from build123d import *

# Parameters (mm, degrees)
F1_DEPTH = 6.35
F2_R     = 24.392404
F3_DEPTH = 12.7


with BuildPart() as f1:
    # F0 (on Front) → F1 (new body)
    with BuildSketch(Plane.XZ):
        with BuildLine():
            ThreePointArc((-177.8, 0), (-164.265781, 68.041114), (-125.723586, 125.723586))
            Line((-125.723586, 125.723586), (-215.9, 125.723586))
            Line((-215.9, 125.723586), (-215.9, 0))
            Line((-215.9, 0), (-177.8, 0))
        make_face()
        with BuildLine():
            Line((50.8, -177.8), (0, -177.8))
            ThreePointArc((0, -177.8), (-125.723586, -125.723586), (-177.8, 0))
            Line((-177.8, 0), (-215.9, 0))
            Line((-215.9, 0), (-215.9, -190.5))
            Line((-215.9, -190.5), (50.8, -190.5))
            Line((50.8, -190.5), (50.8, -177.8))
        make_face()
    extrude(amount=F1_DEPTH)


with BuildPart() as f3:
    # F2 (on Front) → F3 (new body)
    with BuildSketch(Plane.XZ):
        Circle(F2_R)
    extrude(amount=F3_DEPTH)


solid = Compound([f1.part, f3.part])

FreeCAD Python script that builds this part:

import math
import FreeCAD as App
import Part
import Sketcher
Q = App.Units.Quantity

doc = App.newDocument("Part")
body = doc.addObject("PartDesign::Body", "Body")

# Sketch on XZ plane
sketch1 = body.newObject("Sketcher::SketchObject", "Sketch")
sketch1.AttachmentSupport = (doc.getObject("XZ_Plane"), [""])
sketch1.MapMode = "FlatFace"
sketch1.addGeometry([
    Part.ArcOfCircle(Part.Circle(App.Vector(0, 0, 0), App.Vector(0, 0, 1), 178), math.radians(135), math.radians(180)),  # 0
    Part.LineSegment(App.Vector(-126, 126, 0), App.Vector(-216, 126, 0)),  # 1
    Part.LineSegment(App.Vector(-216, 126, 0), App.Vector(-216, -190, 0)),  # 2
    Part.LineSegment(App.Vector(-216, -190, 0), App.Vector(51, -190, 0)),  # 3
    Part.LineSegment(App.Vector(51, -190, 0), App.Vector(51, -178, 0)),  # 4
    Part.LineSegment(App.Vector(51, -178, 0), App.Vector(0, -178, 0)),  # 5
    Part.ArcOfCircle(Part.Circle(App.Vector(0, 0, 0), App.Vector(0, 0, 1), 178), math.radians(180), math.radians(270)),  # 6
], False)
sketch1.addConstraint([
    Sketcher.Constraint("Coincident", 0, 1, 1, 1),
    Sketcher.Constraint("Coincident", 1, 2, 2, 1),
    Sketcher.Constraint("Coincident", 2, 2, 3, 1),
    Sketcher.Constraint("Coincident", 3, 2, 4, 1),
    Sketcher.Constraint("Coincident", 4, 2, 5, 1),
    Sketcher.Constraint("Tangent", 5, 2, 6, 2),
    Sketcher.Constraint("Tangent", 6, 1, 0, 2),
    Sketcher.Constraint("Horizontal", 1),
    Sketcher.Constraint("Vertical", 2),
    Sketcher.Constraint("Horizontal", 3),
    Sketcher.Constraint("Vertical", 4),
    Sketcher.Constraint("Horizontal", 5),
    Sketcher.Constraint("Coincident", 0, 3, -1, 1),
    Sketcher.Constraint("PointOnObject", 5, 2, -2),
    Sketcher.Constraint("PointOnObject", 6, 1, -1),
    Sketcher.Constraint("Radius", 0, Q("7.0000001 in")),
    Sketcher.Constraint("DistanceX", 5, 2, 5, 1, Q("2 in")),
    Sketcher.Constraint("DistanceX", 3, 1, 3, 2, Q("10.5 in")),
    Sketcher.Constraint("DistanceY", 4, 1, 4, 2, Q("0.5 in")),
    Sketcher.Constraint("DistanceX", 1, 2, 1, 1, 90.176414),
])
pad1 = body.newObject("PartDesign::Pad", "Pad")
pad1.Profile = sketch1
pad1.Length = Q("0.25 in")
body2 = doc.addObject("PartDesign::Body", "Body001")

# Sketch on XZ plane
sketch2 = body2.newObject("Sketcher::SketchObject", "Sketch001")
sketch2.AttachmentSupport = (doc.getObject("XZ_Plane001"), [""])
sketch2.MapMode = "FlatFace"
sketch2.addGeometry(Part.Circle(App.Vector(0, 0, 0), App.Vector(0, 0, 1), 24), False)
sketch2.addConstraint([
    Sketcher.Constraint("Coincident", 0, 3, -1, 1),
    Sketcher.Constraint("Diameter", 0, 48.784808),
])
pad2 = body2.newObject("PartDesign::Pad", "Pad001")
pad2.Profile = sketch2
pad2.Length = Q("0.5 in")

doc.recompute()
